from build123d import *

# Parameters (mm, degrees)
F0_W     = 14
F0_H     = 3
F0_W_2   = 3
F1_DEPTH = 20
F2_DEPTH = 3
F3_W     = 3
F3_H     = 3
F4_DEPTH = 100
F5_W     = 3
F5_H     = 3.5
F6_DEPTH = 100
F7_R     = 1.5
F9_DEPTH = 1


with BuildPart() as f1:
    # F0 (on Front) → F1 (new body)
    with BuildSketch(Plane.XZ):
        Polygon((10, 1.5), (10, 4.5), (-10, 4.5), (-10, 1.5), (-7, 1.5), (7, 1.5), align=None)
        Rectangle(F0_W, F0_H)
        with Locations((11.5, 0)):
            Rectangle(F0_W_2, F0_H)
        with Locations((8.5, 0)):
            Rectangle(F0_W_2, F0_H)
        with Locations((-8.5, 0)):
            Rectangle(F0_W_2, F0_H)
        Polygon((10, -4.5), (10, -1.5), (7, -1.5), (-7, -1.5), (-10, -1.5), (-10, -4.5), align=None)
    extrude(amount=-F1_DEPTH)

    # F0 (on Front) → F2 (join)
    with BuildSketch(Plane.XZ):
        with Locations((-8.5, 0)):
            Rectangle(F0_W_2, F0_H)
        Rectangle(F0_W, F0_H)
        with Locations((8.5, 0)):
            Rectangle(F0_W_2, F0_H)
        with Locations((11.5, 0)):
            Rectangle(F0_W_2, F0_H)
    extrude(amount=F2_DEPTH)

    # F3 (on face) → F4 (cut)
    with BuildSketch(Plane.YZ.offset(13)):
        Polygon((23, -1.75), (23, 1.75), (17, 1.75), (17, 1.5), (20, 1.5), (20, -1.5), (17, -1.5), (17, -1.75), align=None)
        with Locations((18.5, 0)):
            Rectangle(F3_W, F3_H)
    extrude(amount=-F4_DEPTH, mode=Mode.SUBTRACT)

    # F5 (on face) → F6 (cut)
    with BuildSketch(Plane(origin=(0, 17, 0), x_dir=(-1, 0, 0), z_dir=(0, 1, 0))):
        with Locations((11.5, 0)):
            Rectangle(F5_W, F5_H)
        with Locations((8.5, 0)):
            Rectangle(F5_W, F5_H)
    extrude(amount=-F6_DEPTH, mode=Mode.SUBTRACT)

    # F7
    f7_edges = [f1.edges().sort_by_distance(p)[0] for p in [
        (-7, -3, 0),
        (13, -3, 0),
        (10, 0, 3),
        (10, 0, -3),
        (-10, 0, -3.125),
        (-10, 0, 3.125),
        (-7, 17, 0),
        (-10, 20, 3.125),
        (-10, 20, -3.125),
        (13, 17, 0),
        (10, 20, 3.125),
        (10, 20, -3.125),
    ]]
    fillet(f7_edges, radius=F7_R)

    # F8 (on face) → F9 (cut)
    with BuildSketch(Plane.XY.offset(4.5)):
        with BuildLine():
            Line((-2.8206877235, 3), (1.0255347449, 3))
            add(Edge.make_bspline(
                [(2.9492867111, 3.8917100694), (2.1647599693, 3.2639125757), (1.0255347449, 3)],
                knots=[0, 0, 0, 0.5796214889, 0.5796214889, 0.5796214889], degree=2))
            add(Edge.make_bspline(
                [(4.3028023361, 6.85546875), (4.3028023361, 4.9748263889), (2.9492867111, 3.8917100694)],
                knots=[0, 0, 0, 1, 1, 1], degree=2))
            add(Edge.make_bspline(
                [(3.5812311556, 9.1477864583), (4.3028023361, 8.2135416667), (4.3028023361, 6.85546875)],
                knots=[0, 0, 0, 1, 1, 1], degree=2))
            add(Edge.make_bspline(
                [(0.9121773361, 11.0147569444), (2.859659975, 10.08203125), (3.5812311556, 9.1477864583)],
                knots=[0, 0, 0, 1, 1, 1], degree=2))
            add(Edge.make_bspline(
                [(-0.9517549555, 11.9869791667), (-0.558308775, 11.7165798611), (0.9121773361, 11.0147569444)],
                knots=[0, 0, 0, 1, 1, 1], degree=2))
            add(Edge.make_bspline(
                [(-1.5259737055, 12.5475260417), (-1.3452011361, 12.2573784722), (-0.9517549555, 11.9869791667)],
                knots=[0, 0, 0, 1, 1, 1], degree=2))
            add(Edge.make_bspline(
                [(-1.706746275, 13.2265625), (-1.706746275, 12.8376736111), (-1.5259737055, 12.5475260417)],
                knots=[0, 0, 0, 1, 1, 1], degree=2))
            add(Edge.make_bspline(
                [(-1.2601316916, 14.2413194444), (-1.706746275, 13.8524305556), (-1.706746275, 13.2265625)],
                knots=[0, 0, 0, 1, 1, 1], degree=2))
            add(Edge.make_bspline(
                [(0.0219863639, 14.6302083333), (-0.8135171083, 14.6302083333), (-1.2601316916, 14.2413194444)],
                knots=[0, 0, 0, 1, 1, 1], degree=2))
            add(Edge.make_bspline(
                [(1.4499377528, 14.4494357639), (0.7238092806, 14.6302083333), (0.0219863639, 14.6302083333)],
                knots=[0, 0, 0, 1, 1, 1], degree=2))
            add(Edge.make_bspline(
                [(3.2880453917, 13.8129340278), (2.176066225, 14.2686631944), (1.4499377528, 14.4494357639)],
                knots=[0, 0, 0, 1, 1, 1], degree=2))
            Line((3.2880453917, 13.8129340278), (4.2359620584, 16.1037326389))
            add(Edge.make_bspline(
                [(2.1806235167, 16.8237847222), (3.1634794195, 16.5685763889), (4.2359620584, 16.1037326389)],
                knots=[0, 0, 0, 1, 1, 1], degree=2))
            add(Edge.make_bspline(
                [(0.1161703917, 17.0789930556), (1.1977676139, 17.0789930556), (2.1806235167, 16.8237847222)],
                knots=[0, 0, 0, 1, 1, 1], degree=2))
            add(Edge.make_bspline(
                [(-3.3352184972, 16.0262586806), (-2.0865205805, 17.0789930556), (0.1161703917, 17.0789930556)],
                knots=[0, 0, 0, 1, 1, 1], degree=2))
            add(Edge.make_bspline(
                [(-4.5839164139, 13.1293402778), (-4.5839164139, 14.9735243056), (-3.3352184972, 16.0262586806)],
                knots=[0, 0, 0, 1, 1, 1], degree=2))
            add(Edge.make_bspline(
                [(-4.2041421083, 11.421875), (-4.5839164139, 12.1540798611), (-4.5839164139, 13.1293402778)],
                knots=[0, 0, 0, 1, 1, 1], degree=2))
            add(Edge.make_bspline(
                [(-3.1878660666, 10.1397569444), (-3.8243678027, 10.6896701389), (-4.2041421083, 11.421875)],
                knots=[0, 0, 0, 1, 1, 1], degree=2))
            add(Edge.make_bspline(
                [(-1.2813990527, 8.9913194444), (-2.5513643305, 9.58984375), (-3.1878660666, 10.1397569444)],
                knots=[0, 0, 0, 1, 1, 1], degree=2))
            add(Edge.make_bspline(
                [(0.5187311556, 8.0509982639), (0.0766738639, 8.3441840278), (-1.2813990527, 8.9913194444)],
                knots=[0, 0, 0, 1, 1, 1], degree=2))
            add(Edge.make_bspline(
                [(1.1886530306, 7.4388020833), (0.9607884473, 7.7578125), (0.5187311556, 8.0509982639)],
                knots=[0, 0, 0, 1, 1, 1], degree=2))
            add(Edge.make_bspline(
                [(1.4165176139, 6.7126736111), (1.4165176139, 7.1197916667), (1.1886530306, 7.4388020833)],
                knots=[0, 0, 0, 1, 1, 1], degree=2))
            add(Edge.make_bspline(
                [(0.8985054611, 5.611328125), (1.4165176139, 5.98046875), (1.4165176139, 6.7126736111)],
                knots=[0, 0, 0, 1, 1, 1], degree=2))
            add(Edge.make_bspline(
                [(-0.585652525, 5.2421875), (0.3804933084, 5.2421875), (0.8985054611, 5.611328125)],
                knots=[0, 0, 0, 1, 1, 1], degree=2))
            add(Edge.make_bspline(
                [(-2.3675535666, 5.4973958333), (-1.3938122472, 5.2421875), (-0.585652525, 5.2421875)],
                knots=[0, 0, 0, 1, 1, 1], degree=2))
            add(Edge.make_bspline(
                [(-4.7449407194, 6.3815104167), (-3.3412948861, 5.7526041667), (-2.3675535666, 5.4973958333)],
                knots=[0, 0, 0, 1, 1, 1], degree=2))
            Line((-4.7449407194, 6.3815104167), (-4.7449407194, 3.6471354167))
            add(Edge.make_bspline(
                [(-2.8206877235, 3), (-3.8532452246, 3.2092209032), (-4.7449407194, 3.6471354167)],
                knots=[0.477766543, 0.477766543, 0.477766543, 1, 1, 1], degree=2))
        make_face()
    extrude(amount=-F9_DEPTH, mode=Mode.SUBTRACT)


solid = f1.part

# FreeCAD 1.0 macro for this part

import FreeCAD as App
import Part
import Sketcher


def edges_at(feature, points):
    """Names of the edges that pass closest to the given points."""
    edges = feature.Shape.Edges
    near = lambda p: min(range(len(edges)), key=lambda i: edges[i].distToShape(Part.Vertex(*p))[0])
    return sorted({f"Edge{near(p) + 1}" for p in points})


def add_polygon(sketch, points):
    """Adds a closed chain of lines whose ends are joined by coincident constraints."""
    first, n = sketch.GeometryCount, len(points)
    for a, b in zip(points, points[1:] + points[:1]):
        sketch.addGeometry(Part.LineSegment(App.Vector(*a, 0), App.Vector(*b, 0)), False)
    for i in range(n):
        sketch.addConstraint(Sketcher.Constraint("Coincident", first + i, 2, first + (i + 1) % n, 1))

doc = App.newDocument("Part")
body = doc.addObject("PartDesign::Body", "Body")

# Sketch on XZ plane
sketch1 = body.newObject("Sketcher::SketchObject", "Sketch")
sketch1.AttachmentSupport = (doc.getObject("XZ_Plane"), [""])
sketch1.MapMode = "FlatFace"
add_polygon(sketch1, [(10, 1.5), (10, 4.5), (-10, 4.5), (-10, -4.5), (10, -4.5), (10, -1.5), (13, -1.5), (13, 1.5)])  # lines 0-7
sketch1.addConstraint(Sketcher.Constraint("Vertical", 0))
sketch1.addConstraint(Sketcher.Constraint("Horizontal", 1))
sketch1.addConstraint(Sketcher.Constraint("Vertical", 2))
sketch1.addConstraint(Sketcher.Constraint("Horizontal", 3))
sketch1.addConstraint(Sketcher.Constraint("Vertical", 4))
sketch1.addConstraint(Sketcher.Constraint("Horizontal", 5))
sketch1.addConstraint(Sketcher.Constraint("Vertical", 6))
sketch1.addConstraint(Sketcher.Constraint("Horizontal", 7))
sketch1.addConstraint(Sketcher.Constraint("Symmetric", 0, 2, 2, 2, -1, 1))
sketch1.addConstraint(Sketcher.Constraint("Symmetric", 4, 2, 7, 2, -1))
sketch1.addConstraint(Sketcher.Constraint("Equal", 7, 0))
sketch1.addConstraint(Sketcher.Constraint("Equal", 4, 6))
sketch1.addConstraint(Sketcher.Constraint("DistanceX", 1, 2, 1, 1, 20.0))
sketch1.addConstraint(Sketcher.Constraint("DistanceX", 5, 1, 5, 2, 3.0))
pad1 = body.newObject("PartDesign::Pad", "Pad")
pad1.Profile = sketch1
pad1.Length = 20
pad1.Reversed = True

# Sketch on XZ plane
sketch2 = body.newObject("Sketcher::SketchObject", "Sketch001")
sketch2.AttachmentSupport = (doc.getObject("XZ_Plane"), [""])
sketch2.MapMode = "FlatFace"
add_polygon(sketch2, [(-10, 1.5), (-10, -1.5), (13, -1.5), (13, 1.5)])  # lines 0-3
sketch2.addConstraint(Sketcher.Constraint("Vertical", 0))
sketch2.addConstraint(Sketcher.Constraint("Horizontal", 1))
sketch2.addConstraint(Sketcher.Constraint("Vertical", 2))
sketch2.addConstraint(Sketcher.Constraint("Horizontal", 3))
sketch2.addConstraint(Sketcher.Constraint("DistanceX", 1, 1, 1, 2, 23.0))
sketch2.addConstraint(Sketcher.Constraint("DistanceY", 0, 2, 0, 1, 3.0))
sketch2.addConstraint(Sketcher.Constraint("DistanceX", 0, 2, -1, 1, 10.0))
sketch2.addConstraint(Sketcher.Constraint("DistanceY", 0, 2, -1, 1, 1.5))
pad2 = body.newObject("PartDesign::Pad", "Pad001")
pad2.Profile = sketch2
pad2.Length = 3

# Sketch on YZ plane
sketch3 = body.newObject("Sketcher::SketchObject", "Sketch002")
sketch3.AttachmentSupport = (doc.getObject("YZ_Plane"), [""])
sketch3.MapMode = "FlatFace"
sketch3.AttachmentOffset = App.Placement(App.Vector(0, 0, 13), App.Rotation())
add_polygon(sketch3, [(23, -1.8), (23, 1.8), (17, 1.8), (17, -1.8)])  # lines 0-3
sketch3.addConstraint(Sketcher.Constraint("Vertical", 0))
sketch3.addConstraint(Sketcher.Constraint("Horizontal", 1))
sketch3.addConstraint(Sketcher.Constraint("Vertical", 2))
sketch3.addConstraint(Sketcher.Constraint("Horizontal", 3))
sketch3.addConstraint(Sketcher.Constraint("DistanceX", 1, 2, 1, 1, 6.0))
sketch3.addConstraint(Sketcher.Constraint("DistanceY", 0, 1, 0, 2, 3.5))
sketch3.addConstraint(Sketcher.Constraint("DistanceX", -1, 1, 0, 2, 23.0))
sketch3.addConstraint(Sketcher.Constraint("DistanceY", -1, 1, 0, 2, 1.75))
pocket1 = body.newObject("PartDesign::Pocket", "Pocket")
pocket1.Profile = sketch3
pocket1.Length = 100

# Sketch on XZ plane
sketch4 = body.newObject("Sketcher::SketchObject", "Sketch003")
sketch4.AttachmentSupport = (doc.getObject("XZ_Plane"), [""])
sketch4.MapMode = "FlatFace"
sketch4.AttachmentOffset = App.Placement(App.Vector(0, 0, -17), App.Rotation())
add_polygon(sketch4, [(-13, -1.8), (-13, 1.8), (-7, 1.8), (-7, -1.8)])  # lines 0-3
sketch4.addConstraint(Sketcher.Constraint("Vertical", 0))
sketch4.addConstraint(Sketcher.Constraint("Horizontal", 1))
sketch4.addConstraint(Sketcher.Constraint("Vertical", 2))
sketch4.addConstraint(Sketcher.Constraint("Horizontal", 3))
sketch4.addConstraint(Sketcher.Constraint("DistanceX", 1, 1, 1, 2, 6.0))
sketch4.addConstraint(Sketcher.Constraint("DistanceY", 0, 1, 0, 2, 3.5))
sketch4.addConstraint(Sketcher.Constraint("DistanceX", 0, 2, -1, 1, 13.0))
sketch4.addConstraint(Sketcher.Constraint("DistanceY", -1, 1, 0, 2, 1.75))
pocket2 = body.newObject("PartDesign::Pocket", "Pocket001")
pocket2.Profile = sketch4
pocket2.Length = 100
pocket2.Reversed = True
doc.recompute()

fillet = body.newObject("PartDesign::Fillet", "Fillet")
fillet.Base = (pocket2, edges_at(pocket2, [
    (-7, -3, 0),
    (13, -3, 0),
    (10, 0, 3),
    (10, 0, -3),
    (-10, 0, -3.125),
    (-10, 0, 3.125),
    (-7, 17, 0),
    (-10, 20, 3.125),
    (-10, 20, -3.125),
    (13, 17, 0),
    (10, 20, 3.125),
    (10, 20, -3.125),
]))
fillet.Radius = 1.5

# Sketch on XY plane
sketch5 = body.newObject("Sketcher::SketchObject", "Sketch004")
sketch5.AttachmentSupport = (doc.getObject("XY_Plane"), [""])
sketch5.MapMode = "FlatFace"
sketch5.AttachmentOffset = App.Placement(App.Vector(0, 0, 4.5), App.Rotation())
sketch5.addGeometry(Part.LineSegment(App.Vector(-2.820688, 3, 0), App.Vector(1.025535, 3, 0)), False)
sketch5.addGeometry(Part.BSplineCurve([App.Vector(2.949287, 3.89171, 0), App.Vector(2.16476, 3.263913, 0), App.Vector(1.025535, 3, 0)], [3, 3], [0, 0.579621489], False, 2, [1, 1, 1], False), False)
sketch5.addGeometry(Part.BSplineCurve([App.Vector(3.581231, 9.147786, 0), App.Vector(4.302802, 8.213542, 0), App.Vector(4.302802, 4.974826, 0), App.Vector(2.949287, 3.89171, 0)], [3, 1, 3], [0, 1, 2.384787472], False, 2, [1, 1, 1, 1], False), False)
sketch5.addGeometry(Part.BSplineCurve([App.Vector(0.912177, 11.014757, 0), App.Vector(2.85966, 10.082031, 0), App.Vector(3.581231, 9.147786, 0)], [3, 3], [0, 1], False, 2, [1, 1, 1], False), False)
sketch5.addGeometry(Part.BSplineCurve([App.Vector(-0.951755, 11.986979, 0), App.Vector(-0.558309, 11.71658, 0), App.Vector(0.912177, 11.014757, 0)], [3, 3], [0, 1], False, 2, [1, 1, 1], False), False)
sketch5.addGeometry(Part.BSplineCurve([App.Vector(-1.525974, 12.547526, 0), App.Vector(-1.345201, 12.257378, 0), App.Vector(-0.951755, 11.986979, 0)], [3, 3], [0, 1], False, 2, [1, 1, 1], False), False)
sketch5.addGeometry(Part.BSplineCurve([App.Vector(-1.260132, 14.241319, 0), App.Vector(-1.706746, 13.852431, 0), App.Vector(-1.706746, 12.837674, 0), App.Vector(-1.525974, 12.547526, 0)], [3, 1, 3], [0, 1, 1.621359223], False, 2, [1, 1, 1, 1], False), False)
sketch5.addGeometry(Part.BSplineCurve([App.Vector(1.449938, 14.449436, 0), App.Vector(0.723809, 14.630208, 0), App.Vector(-0.813517, 14.630208, 0), App.Vector(-1.260132, 14.241319, 0)], [3, 1, 3], [0, 1, 2.19047619], False, 2, [1, 1, 1, 1], False), False)
sketch5.addGeometry(Part.BSplineCurve([App.Vector(3.288045, 13.812934, 0), App.Vector(2.176066, 14.268663, 0), App.Vector(1.449938, 14.449436, 0)], [3, 3], [0, 1], False, 2, [1, 1, 1], False), False)
sketch5.addGeometry(Part.LineSegment(App.Vector(3.288045, 13.812934, 0), App.Vector(4.235962, 16.103733, 0)), False)
sketch5.addGeometry(Part.BSplineCurve([App.Vector(2.180624, 16.823785, 0), App.Vector(3.163479, 16.568576, 0), App.Vector(4.235962, 16.103733, 0)], [3, 3], [0, 1], False, 2, [1, 1, 1], False), False)
sketch5.addGeometry(Part.BSplineCurve([App.Vector(-3.187866, 10.139757, 0), App.Vector(-3.824368, 10.68967, 0), App.Vector(-4.583916, 12.15408, 0), App.Vector(-4.583916, 14.973524, 0), App.Vector(-2.086521, 17.078993, 0), App.Vector(1.197768, 17.078993, 0), App.Vector(2.180624, 16.823785, 0)], [3, 1, 1, 1, 1, 3], [0, 1, 2, 3.890965732, 5.781931464, 6.710460844], False, 2, [1, 1, 1, 1, 1, 1, 1], False), False)
sketch5.addGeometry(Part.BSplineCurve([App.Vector(-1.281399, 8.991319, 0), App.Vector(-2.551364, 9.589844, 0), App.Vector(-3.187866, 10.139757, 0)], [3, 3], [0, 1], False, 2, [1, 1, 1], False), False)
sketch5.addGeometry(Part.BSplineCurve([App.Vector(1.188653, 7.438802, 0), App.Vector(0.960788, 7.757812, 0), App.Vector(0.076674, 8.344184, 0), App.Vector(-1.281399, 8.991319, 0)], [3, 1, 3], [0, 1, 2], False, 2, [1, 1, 1, 1], False), False)
sketch5.addGeometry(Part.BSplineCurve([App.Vector(0.898505, 5.611328, 0), App.Vector(1.416518, 5.980469, 0), App.Vector(1.416518, 7.119792, 0), App.Vector(1.188653, 7.438802, 0)], [3, 1, 3], [0, 1, 1.556016598], False, 2, [1, 1, 1, 1], False), False)
sketch5.addGeometry(Part.BSplineCurve([App.Vector(-2.367554, 5.497396, 0), App.Vector(-1.393812, 5.242188, 0), App.Vector(0.380493, 5.242188, 0), App.Vector(0.898505, 5.611328, 0)], [3, 1, 3], [0, 1, 2.195488722], False, 2, [1, 1, 1, 1], False), False)
sketch5.addGeometry(Part.BSplineCurve([App.Vector(-4.744941, 6.38151, 0), App.Vector(-3.341295, 5.752604, 0), App.Vector(-2.367554, 5.497396, 0)], [3, 3], [0, 1], False, 2, [1, 1, 1], False), False)
sketch5.addGeometry(Part.LineSegment(App.Vector(-4.744941, 6.38151, 0), App.Vector(-4.744941, 3.647135, 0)), False)
sketch5.addGeometry(Part.BSplineCurve([App.Vector(-2.820688, 3, 0), App.Vector(-3.853245, 3.209221, 0), App.Vector(-4.744941, 3.647135, 0)], [3, 3], [0.477766543, 1], False, 2, [1, 1, 1], False), False)
sketch5.addConstraint(Sketcher.Constraint("Block", 1))
sketch5.addConstraint(Sketcher.Constraint("Block", 2))
sketch5.addConstraint(Sketcher.Constraint("Block", 3))
sketch5.addConstraint(Sketcher.Constraint("Block", 4))
sketch5.addConstraint(Sketcher.Constraint("Block", 5))
sketch5.addConstraint(Sketcher.Constraint("Block", 6))
sketch5.addConstraint(Sketcher.Constraint("Block", 7))
sketch5.addConstraint(Sketcher.Constraint("Block", 8))
sketch5.addConstraint(Sketcher.Constraint("Block", 10))
sketch5.addConstraint(Sketcher.Constraint("Block", 11))
sketch5.addConstraint(Sketcher.Constraint("Block", 12))
sketch5.addConstraint(Sketcher.Constraint("Block", 13))
sketch5.addConstraint(Sketcher.Constraint("Block", 14))
sketch5.addConstraint(Sketcher.Constraint("Block", 15))
sketch5.addConstraint(Sketcher.Constraint("Block", 16))
sketch5.addConstraint(Sketcher.Constraint("Block", 18))
sketch5.addConstraint(Sketcher.Constraint("Coincident", 0, 2, 1, 2))
sketch5.addConstraint(Sketcher.Constraint("Coincident", 8, 1, 9, 1))
sketch5.addConstraint(Sketcher.Constraint("Coincident", 9, 2, 10, 2))
sketch5.addConstraint(Sketcher.Constraint("Coincident", 16, 1, 17, 1))
sketch5.addConstraint(Sketcher.Constraint("Coincident", 17, 2, 18, 2))
sketch5.addConstraint(Sketcher.Constraint("Coincident", 18, 1, 0, 1))
pocket3 = body.newObject("PartDesign::Pocket", "Pocket002")
pocket3.Profile = sketch5
pocket3.Length = 1

doc.recompute()
